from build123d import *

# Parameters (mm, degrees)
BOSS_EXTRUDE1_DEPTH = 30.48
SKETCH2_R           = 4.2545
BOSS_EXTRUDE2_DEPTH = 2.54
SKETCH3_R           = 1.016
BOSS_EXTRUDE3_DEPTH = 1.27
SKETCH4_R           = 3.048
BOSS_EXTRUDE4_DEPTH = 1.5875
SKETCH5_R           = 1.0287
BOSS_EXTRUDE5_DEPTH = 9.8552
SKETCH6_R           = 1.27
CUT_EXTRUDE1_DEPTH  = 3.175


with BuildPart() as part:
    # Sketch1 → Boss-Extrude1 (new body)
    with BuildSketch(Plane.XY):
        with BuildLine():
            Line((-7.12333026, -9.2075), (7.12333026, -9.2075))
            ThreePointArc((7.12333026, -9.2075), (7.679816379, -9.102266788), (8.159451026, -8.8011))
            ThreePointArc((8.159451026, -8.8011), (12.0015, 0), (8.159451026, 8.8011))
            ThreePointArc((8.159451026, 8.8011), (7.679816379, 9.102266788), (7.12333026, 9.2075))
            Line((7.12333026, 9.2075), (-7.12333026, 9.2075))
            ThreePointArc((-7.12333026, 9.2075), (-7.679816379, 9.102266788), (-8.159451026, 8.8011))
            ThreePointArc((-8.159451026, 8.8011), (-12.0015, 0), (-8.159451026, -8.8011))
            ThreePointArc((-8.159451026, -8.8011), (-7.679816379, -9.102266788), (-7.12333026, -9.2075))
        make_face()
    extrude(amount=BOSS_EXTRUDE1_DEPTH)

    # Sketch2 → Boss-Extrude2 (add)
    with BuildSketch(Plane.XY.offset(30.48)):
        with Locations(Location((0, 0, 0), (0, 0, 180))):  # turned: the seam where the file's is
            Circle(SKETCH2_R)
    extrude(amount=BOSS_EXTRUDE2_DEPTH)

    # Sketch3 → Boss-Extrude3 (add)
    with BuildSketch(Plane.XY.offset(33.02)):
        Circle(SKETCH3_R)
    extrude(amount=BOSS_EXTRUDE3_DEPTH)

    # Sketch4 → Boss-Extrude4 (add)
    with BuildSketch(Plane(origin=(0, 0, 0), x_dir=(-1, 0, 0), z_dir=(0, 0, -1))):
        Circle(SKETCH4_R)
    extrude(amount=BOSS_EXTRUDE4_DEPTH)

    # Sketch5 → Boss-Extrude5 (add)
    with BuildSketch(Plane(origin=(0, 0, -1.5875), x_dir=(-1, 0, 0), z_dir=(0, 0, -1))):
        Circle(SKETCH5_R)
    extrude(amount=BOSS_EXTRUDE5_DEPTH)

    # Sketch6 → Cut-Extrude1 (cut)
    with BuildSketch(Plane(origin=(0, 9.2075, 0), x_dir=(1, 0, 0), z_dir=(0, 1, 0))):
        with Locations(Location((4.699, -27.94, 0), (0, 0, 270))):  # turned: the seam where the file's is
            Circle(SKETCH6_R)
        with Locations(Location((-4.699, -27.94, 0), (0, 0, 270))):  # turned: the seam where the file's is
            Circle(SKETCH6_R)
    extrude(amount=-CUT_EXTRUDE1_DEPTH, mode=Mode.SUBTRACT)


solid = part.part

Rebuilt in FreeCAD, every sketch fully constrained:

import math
import FreeCAD as App
import Part
import Sketcher
Q = App.Units.Quantity

doc = App.newDocument("Part")
body = doc.addObject("PartDesign::Body", "Body")

# Sketch on XY plane
sketch1 = doc.addObject("Sketcher::SketchObject", "Sketch")
body.addObject(sketch1)
sketch1.AttachmentSupport = (doc.XY_Plane, [""])
sketch1.MapMode = "FlatFace"
sketch1.addGeometry([
    Part.LineSegment(App.Vector(-7.12333, -9.2075, 0), App.Vector(7.12333, -9.2075, 0)),  # 0
    Part.ArcOfCircle(Part.Circle(App.Vector(7.12333, -7.6835, 0), App.Vector(0, 0, 1), 1.524), math.radians(-90), math.radians(-47.166572)),  # 1
    Part.ArcOfCircle(Part.Circle(App.Vector(0, 0, 0), App.Vector(0, 0, 1), 12.0015), math.radians(-47.166572), math.radians(47.166572)),  # 2
    Part.ArcOfCircle(Part.Circle(App.Vector(7.12333, 7.6835, 0), App.Vector(0, 0, 1), 1.524), math.radians(47.166572), math.radians(90)),  # 3
    Part.LineSegment(App.Vector(7.12333, 9.2075, 0), App.Vector(-7.12333, 9.2075, 0)),  # 4
    Part.ArcOfCircle(Part.Circle(App.Vector(-7.12333, 7.6835, 0), App.Vector(0, 0, 1), 1.524), math.radians(90), math.radians(132.833428)),  # 5
    Part.ArcOfCircle(Part.Circle(App.Vector(0, 0, 0), App.Vector(0, 0, 1), 12.0015), math.radians(132.833428), math.radians(227.166572)),  # 6
    Part.ArcOfCircle(Part.Circle(App.Vector(-7.12333, -7.6835, 0), App.Vector(0, 0, 1), 1.524), math.radians(-132.833428), math.radians(-90)),  # 7
], False)
sketch1.addConstraint([
    Sketcher.Constraint("Tangent", 0, 2, 1, 1),
    Sketcher.Constraint("Tangent", 1, 2, 2, 1),
    Sketcher.Constraint("Tangent", 2, 2, 3, 1),
    Sketcher.Constraint("Tangent", 3, 2, 4, 1),
    Sketcher.Constraint("Tangent", 4, 2, 5, 1),
    Sketcher.Constraint("Tangent", 5, 2, 6, 1),
    Sketcher.Constraint("Tangent", 6, 2, 7, 1),
    Sketcher.Constraint("Tangent", 7, 2, 0, 1),
    Sketcher.Constraint("Horizontal", 0),
    Sketcher.Constraint("Horizontal", 4),
    Sketcher.Constraint("Coincident", 2, 3, -1, 1),
    Sketcher.Constraint("Coincident", 6, 3, -1, 1),
    Sketcher.Constraint("Equal", 1, 3),
    Sketcher.Constraint("Equal", 3, 5),
    Sketcher.Constraint("Equal", 2, 6),
    Sketcher.Constraint("Equal", 5, 7),
    Sketcher.Constraint("Vertical", 1, 3, 3, 3),
    Sketcher.Constraint("Radius", 1, Q("0.06 in")),
    Sketcher.Constraint("Radius", 2, Q("0.4725 in")),
    Sketcher.Constraint("DistanceY", 1, 3, 3, 3, Q("0.605 in")),
])
pad1 = doc.addObject("PartDesign::Pad", "Pad")
body.addObject(pad1)
pad1.Profile = sketch1
pad1.Length = Q("1.2 in")

# Sketch on XY plane
sketch2 = doc.addObject("Sketcher::SketchObject", "Sketch001")
body.addObject(sketch2)
sketch2.AttachmentSupport = (doc.XY_Plane, [""])
sketch2.MapMode = "FlatFace"
sketch2.AttachmentOffset = App.Placement(App.Vector(0, 0, 1.2 * 25.4), App.Rotation())
sketch2.addGeometry(Part.Circle(App.Vector(0, 0, 0), App.Vector(0, 0, 1), 4.2545), False)
sketch2.addConstraint([
    Sketcher.Constraint("Coincident", 0, 3, -1, 1),
    Sketcher.Constraint("Diameter", 0, Q("0.335 in")),
])
pad2 = doc.addObject("PartDesign::Pad", "Pad001")
body.addObject(pad2)
pad2.Profile = sketch2
pad2.Length = Q("0.1 in")

# Sketch on XY plane
sketch3 = doc.addObject("Sketcher::SketchObject", "Sketch002")
body.addObject(sketch3)
sketch3.AttachmentSupport = (doc.XY_Plane, [""])
sketch3.MapMode = "FlatFace"
sketch3.AttachmentOffset = App.Placement(App.Vector(0, 0, 1.3 * 25.4), App.Rotation())
sketch3.addGeometry(Part.Circle(App.Vector(0, 0, 0), App.Vector(0, 0, 1), 1.016), False)
sketch3.addConstraint([
    Sketcher.Constraint("Coincident", 0, 3, -1, 1),
    Sketcher.Constraint("Diameter", 0, Q("0.08 in")),
])
pad3 = doc.addObject("PartDesign::Pad", "Pad002")
body.addObject(pad3)
pad3.Profile = sketch3
pad3.Length = Q("0.05 in")

# Sketch on XY plane
sketch4 = doc.addObject("Sketcher::SketchObject", "Sketch003")
body.addObject(sketch4)
sketch4.AttachmentSupport = (doc.XY_Plane, [""])
sketch4.MapMode = "FlatFace"
sketch4.addGeometry(Part.Circle(App.Vector(0, 0, 0), App.Vector(0, 0, 1), 3.048), False)
sketch4.addConstraint([
    Sketcher.Constraint("Coincident", 0, 3, -1, 1),
    Sketcher.Constraint("Diameter", 0, Q("0.24 in")),
])
pad4 = doc.addObject("PartDesign::Pad", "Pad003")
body.addObject(pad4)
pad4.Profile = sketch4
pad4.Length = Q("0.0625 in")
pad4.Reversed = True

# Sketch on XY plane
sketch5 = doc.addObject("Sketcher::SketchObject", "Sketch004")
body.addObject(sketch5)
sketch5.AttachmentSupport = (doc.XY_Plane, [""])
sketch5.MapMode = "FlatFace"
sketch5.AttachmentOffset = App.Placement(App.Vector(0, 0, -0.0625 * 25.4), App.Rotation())
sketch5.addGeometry(Part.Circle(App.Vector(0, 0, 0), App.Vector(0, 0, 1), 1.0287), False)
sketch5.addConstraint([
    Sketcher.Constraint("Coincident", 0, 3, -1, 1),
    Sketcher.Constraint("Diameter", 0, Q("0.081 in")),
])
pad5 = doc.addObject("PartDesign::Pad", "Pad004")
body.addObject(pad5)
pad5.Profile = sketch5
pad5.Length = Q("0.388 in")
pad5.Reversed = True

# Sketch on XZ plane
sketch6 = doc.addObject("Sketcher::SketchObject", "Sketch005")
body.addObject(sketch6)
sketch6.AttachmentSupport = (doc.XZ_Plane, [""])
sketch6.MapMode = "FlatFace"
sketch6.AttachmentOffset = App.Placement(App.Vector(0, 0, -0.3625 * 25.4), App.Rotation())
sketch6.addGeometry([
    Part.Circle(App.Vector(4.699, 27.94, 0), App.Vector(0, 0, 1), 1.27),
    Part.Circle(App.Vector(-4.699, 27.94, 0), App.Vector(0, 0, 1), 1.27),
], False)
sketch6.addConstraint([
    Sketcher.Constraint("Equal", 0, 1),
    Sketcher.Constraint("Symmetric", 0, 3, 1, 3, -2),
    Sketcher.Constraint("Diameter", 0, Q("0.1 in")),
    Sketcher.Constraint("DistanceY", -1, 1, 0, 3, Q("1.1 in")),
    Sketcher.Constraint("DistanceX", 1, 3, 0, 3, Q("0.37 in")),
])
pocket1 = doc.addObject("PartDesign::Pocket", "Pocket")
body.addObject(pocket1)
pocket1.Profile = sketch6
pocket1.Length = Q("0.125 in")
pocket1.Reversed = True

doc.recompute()
